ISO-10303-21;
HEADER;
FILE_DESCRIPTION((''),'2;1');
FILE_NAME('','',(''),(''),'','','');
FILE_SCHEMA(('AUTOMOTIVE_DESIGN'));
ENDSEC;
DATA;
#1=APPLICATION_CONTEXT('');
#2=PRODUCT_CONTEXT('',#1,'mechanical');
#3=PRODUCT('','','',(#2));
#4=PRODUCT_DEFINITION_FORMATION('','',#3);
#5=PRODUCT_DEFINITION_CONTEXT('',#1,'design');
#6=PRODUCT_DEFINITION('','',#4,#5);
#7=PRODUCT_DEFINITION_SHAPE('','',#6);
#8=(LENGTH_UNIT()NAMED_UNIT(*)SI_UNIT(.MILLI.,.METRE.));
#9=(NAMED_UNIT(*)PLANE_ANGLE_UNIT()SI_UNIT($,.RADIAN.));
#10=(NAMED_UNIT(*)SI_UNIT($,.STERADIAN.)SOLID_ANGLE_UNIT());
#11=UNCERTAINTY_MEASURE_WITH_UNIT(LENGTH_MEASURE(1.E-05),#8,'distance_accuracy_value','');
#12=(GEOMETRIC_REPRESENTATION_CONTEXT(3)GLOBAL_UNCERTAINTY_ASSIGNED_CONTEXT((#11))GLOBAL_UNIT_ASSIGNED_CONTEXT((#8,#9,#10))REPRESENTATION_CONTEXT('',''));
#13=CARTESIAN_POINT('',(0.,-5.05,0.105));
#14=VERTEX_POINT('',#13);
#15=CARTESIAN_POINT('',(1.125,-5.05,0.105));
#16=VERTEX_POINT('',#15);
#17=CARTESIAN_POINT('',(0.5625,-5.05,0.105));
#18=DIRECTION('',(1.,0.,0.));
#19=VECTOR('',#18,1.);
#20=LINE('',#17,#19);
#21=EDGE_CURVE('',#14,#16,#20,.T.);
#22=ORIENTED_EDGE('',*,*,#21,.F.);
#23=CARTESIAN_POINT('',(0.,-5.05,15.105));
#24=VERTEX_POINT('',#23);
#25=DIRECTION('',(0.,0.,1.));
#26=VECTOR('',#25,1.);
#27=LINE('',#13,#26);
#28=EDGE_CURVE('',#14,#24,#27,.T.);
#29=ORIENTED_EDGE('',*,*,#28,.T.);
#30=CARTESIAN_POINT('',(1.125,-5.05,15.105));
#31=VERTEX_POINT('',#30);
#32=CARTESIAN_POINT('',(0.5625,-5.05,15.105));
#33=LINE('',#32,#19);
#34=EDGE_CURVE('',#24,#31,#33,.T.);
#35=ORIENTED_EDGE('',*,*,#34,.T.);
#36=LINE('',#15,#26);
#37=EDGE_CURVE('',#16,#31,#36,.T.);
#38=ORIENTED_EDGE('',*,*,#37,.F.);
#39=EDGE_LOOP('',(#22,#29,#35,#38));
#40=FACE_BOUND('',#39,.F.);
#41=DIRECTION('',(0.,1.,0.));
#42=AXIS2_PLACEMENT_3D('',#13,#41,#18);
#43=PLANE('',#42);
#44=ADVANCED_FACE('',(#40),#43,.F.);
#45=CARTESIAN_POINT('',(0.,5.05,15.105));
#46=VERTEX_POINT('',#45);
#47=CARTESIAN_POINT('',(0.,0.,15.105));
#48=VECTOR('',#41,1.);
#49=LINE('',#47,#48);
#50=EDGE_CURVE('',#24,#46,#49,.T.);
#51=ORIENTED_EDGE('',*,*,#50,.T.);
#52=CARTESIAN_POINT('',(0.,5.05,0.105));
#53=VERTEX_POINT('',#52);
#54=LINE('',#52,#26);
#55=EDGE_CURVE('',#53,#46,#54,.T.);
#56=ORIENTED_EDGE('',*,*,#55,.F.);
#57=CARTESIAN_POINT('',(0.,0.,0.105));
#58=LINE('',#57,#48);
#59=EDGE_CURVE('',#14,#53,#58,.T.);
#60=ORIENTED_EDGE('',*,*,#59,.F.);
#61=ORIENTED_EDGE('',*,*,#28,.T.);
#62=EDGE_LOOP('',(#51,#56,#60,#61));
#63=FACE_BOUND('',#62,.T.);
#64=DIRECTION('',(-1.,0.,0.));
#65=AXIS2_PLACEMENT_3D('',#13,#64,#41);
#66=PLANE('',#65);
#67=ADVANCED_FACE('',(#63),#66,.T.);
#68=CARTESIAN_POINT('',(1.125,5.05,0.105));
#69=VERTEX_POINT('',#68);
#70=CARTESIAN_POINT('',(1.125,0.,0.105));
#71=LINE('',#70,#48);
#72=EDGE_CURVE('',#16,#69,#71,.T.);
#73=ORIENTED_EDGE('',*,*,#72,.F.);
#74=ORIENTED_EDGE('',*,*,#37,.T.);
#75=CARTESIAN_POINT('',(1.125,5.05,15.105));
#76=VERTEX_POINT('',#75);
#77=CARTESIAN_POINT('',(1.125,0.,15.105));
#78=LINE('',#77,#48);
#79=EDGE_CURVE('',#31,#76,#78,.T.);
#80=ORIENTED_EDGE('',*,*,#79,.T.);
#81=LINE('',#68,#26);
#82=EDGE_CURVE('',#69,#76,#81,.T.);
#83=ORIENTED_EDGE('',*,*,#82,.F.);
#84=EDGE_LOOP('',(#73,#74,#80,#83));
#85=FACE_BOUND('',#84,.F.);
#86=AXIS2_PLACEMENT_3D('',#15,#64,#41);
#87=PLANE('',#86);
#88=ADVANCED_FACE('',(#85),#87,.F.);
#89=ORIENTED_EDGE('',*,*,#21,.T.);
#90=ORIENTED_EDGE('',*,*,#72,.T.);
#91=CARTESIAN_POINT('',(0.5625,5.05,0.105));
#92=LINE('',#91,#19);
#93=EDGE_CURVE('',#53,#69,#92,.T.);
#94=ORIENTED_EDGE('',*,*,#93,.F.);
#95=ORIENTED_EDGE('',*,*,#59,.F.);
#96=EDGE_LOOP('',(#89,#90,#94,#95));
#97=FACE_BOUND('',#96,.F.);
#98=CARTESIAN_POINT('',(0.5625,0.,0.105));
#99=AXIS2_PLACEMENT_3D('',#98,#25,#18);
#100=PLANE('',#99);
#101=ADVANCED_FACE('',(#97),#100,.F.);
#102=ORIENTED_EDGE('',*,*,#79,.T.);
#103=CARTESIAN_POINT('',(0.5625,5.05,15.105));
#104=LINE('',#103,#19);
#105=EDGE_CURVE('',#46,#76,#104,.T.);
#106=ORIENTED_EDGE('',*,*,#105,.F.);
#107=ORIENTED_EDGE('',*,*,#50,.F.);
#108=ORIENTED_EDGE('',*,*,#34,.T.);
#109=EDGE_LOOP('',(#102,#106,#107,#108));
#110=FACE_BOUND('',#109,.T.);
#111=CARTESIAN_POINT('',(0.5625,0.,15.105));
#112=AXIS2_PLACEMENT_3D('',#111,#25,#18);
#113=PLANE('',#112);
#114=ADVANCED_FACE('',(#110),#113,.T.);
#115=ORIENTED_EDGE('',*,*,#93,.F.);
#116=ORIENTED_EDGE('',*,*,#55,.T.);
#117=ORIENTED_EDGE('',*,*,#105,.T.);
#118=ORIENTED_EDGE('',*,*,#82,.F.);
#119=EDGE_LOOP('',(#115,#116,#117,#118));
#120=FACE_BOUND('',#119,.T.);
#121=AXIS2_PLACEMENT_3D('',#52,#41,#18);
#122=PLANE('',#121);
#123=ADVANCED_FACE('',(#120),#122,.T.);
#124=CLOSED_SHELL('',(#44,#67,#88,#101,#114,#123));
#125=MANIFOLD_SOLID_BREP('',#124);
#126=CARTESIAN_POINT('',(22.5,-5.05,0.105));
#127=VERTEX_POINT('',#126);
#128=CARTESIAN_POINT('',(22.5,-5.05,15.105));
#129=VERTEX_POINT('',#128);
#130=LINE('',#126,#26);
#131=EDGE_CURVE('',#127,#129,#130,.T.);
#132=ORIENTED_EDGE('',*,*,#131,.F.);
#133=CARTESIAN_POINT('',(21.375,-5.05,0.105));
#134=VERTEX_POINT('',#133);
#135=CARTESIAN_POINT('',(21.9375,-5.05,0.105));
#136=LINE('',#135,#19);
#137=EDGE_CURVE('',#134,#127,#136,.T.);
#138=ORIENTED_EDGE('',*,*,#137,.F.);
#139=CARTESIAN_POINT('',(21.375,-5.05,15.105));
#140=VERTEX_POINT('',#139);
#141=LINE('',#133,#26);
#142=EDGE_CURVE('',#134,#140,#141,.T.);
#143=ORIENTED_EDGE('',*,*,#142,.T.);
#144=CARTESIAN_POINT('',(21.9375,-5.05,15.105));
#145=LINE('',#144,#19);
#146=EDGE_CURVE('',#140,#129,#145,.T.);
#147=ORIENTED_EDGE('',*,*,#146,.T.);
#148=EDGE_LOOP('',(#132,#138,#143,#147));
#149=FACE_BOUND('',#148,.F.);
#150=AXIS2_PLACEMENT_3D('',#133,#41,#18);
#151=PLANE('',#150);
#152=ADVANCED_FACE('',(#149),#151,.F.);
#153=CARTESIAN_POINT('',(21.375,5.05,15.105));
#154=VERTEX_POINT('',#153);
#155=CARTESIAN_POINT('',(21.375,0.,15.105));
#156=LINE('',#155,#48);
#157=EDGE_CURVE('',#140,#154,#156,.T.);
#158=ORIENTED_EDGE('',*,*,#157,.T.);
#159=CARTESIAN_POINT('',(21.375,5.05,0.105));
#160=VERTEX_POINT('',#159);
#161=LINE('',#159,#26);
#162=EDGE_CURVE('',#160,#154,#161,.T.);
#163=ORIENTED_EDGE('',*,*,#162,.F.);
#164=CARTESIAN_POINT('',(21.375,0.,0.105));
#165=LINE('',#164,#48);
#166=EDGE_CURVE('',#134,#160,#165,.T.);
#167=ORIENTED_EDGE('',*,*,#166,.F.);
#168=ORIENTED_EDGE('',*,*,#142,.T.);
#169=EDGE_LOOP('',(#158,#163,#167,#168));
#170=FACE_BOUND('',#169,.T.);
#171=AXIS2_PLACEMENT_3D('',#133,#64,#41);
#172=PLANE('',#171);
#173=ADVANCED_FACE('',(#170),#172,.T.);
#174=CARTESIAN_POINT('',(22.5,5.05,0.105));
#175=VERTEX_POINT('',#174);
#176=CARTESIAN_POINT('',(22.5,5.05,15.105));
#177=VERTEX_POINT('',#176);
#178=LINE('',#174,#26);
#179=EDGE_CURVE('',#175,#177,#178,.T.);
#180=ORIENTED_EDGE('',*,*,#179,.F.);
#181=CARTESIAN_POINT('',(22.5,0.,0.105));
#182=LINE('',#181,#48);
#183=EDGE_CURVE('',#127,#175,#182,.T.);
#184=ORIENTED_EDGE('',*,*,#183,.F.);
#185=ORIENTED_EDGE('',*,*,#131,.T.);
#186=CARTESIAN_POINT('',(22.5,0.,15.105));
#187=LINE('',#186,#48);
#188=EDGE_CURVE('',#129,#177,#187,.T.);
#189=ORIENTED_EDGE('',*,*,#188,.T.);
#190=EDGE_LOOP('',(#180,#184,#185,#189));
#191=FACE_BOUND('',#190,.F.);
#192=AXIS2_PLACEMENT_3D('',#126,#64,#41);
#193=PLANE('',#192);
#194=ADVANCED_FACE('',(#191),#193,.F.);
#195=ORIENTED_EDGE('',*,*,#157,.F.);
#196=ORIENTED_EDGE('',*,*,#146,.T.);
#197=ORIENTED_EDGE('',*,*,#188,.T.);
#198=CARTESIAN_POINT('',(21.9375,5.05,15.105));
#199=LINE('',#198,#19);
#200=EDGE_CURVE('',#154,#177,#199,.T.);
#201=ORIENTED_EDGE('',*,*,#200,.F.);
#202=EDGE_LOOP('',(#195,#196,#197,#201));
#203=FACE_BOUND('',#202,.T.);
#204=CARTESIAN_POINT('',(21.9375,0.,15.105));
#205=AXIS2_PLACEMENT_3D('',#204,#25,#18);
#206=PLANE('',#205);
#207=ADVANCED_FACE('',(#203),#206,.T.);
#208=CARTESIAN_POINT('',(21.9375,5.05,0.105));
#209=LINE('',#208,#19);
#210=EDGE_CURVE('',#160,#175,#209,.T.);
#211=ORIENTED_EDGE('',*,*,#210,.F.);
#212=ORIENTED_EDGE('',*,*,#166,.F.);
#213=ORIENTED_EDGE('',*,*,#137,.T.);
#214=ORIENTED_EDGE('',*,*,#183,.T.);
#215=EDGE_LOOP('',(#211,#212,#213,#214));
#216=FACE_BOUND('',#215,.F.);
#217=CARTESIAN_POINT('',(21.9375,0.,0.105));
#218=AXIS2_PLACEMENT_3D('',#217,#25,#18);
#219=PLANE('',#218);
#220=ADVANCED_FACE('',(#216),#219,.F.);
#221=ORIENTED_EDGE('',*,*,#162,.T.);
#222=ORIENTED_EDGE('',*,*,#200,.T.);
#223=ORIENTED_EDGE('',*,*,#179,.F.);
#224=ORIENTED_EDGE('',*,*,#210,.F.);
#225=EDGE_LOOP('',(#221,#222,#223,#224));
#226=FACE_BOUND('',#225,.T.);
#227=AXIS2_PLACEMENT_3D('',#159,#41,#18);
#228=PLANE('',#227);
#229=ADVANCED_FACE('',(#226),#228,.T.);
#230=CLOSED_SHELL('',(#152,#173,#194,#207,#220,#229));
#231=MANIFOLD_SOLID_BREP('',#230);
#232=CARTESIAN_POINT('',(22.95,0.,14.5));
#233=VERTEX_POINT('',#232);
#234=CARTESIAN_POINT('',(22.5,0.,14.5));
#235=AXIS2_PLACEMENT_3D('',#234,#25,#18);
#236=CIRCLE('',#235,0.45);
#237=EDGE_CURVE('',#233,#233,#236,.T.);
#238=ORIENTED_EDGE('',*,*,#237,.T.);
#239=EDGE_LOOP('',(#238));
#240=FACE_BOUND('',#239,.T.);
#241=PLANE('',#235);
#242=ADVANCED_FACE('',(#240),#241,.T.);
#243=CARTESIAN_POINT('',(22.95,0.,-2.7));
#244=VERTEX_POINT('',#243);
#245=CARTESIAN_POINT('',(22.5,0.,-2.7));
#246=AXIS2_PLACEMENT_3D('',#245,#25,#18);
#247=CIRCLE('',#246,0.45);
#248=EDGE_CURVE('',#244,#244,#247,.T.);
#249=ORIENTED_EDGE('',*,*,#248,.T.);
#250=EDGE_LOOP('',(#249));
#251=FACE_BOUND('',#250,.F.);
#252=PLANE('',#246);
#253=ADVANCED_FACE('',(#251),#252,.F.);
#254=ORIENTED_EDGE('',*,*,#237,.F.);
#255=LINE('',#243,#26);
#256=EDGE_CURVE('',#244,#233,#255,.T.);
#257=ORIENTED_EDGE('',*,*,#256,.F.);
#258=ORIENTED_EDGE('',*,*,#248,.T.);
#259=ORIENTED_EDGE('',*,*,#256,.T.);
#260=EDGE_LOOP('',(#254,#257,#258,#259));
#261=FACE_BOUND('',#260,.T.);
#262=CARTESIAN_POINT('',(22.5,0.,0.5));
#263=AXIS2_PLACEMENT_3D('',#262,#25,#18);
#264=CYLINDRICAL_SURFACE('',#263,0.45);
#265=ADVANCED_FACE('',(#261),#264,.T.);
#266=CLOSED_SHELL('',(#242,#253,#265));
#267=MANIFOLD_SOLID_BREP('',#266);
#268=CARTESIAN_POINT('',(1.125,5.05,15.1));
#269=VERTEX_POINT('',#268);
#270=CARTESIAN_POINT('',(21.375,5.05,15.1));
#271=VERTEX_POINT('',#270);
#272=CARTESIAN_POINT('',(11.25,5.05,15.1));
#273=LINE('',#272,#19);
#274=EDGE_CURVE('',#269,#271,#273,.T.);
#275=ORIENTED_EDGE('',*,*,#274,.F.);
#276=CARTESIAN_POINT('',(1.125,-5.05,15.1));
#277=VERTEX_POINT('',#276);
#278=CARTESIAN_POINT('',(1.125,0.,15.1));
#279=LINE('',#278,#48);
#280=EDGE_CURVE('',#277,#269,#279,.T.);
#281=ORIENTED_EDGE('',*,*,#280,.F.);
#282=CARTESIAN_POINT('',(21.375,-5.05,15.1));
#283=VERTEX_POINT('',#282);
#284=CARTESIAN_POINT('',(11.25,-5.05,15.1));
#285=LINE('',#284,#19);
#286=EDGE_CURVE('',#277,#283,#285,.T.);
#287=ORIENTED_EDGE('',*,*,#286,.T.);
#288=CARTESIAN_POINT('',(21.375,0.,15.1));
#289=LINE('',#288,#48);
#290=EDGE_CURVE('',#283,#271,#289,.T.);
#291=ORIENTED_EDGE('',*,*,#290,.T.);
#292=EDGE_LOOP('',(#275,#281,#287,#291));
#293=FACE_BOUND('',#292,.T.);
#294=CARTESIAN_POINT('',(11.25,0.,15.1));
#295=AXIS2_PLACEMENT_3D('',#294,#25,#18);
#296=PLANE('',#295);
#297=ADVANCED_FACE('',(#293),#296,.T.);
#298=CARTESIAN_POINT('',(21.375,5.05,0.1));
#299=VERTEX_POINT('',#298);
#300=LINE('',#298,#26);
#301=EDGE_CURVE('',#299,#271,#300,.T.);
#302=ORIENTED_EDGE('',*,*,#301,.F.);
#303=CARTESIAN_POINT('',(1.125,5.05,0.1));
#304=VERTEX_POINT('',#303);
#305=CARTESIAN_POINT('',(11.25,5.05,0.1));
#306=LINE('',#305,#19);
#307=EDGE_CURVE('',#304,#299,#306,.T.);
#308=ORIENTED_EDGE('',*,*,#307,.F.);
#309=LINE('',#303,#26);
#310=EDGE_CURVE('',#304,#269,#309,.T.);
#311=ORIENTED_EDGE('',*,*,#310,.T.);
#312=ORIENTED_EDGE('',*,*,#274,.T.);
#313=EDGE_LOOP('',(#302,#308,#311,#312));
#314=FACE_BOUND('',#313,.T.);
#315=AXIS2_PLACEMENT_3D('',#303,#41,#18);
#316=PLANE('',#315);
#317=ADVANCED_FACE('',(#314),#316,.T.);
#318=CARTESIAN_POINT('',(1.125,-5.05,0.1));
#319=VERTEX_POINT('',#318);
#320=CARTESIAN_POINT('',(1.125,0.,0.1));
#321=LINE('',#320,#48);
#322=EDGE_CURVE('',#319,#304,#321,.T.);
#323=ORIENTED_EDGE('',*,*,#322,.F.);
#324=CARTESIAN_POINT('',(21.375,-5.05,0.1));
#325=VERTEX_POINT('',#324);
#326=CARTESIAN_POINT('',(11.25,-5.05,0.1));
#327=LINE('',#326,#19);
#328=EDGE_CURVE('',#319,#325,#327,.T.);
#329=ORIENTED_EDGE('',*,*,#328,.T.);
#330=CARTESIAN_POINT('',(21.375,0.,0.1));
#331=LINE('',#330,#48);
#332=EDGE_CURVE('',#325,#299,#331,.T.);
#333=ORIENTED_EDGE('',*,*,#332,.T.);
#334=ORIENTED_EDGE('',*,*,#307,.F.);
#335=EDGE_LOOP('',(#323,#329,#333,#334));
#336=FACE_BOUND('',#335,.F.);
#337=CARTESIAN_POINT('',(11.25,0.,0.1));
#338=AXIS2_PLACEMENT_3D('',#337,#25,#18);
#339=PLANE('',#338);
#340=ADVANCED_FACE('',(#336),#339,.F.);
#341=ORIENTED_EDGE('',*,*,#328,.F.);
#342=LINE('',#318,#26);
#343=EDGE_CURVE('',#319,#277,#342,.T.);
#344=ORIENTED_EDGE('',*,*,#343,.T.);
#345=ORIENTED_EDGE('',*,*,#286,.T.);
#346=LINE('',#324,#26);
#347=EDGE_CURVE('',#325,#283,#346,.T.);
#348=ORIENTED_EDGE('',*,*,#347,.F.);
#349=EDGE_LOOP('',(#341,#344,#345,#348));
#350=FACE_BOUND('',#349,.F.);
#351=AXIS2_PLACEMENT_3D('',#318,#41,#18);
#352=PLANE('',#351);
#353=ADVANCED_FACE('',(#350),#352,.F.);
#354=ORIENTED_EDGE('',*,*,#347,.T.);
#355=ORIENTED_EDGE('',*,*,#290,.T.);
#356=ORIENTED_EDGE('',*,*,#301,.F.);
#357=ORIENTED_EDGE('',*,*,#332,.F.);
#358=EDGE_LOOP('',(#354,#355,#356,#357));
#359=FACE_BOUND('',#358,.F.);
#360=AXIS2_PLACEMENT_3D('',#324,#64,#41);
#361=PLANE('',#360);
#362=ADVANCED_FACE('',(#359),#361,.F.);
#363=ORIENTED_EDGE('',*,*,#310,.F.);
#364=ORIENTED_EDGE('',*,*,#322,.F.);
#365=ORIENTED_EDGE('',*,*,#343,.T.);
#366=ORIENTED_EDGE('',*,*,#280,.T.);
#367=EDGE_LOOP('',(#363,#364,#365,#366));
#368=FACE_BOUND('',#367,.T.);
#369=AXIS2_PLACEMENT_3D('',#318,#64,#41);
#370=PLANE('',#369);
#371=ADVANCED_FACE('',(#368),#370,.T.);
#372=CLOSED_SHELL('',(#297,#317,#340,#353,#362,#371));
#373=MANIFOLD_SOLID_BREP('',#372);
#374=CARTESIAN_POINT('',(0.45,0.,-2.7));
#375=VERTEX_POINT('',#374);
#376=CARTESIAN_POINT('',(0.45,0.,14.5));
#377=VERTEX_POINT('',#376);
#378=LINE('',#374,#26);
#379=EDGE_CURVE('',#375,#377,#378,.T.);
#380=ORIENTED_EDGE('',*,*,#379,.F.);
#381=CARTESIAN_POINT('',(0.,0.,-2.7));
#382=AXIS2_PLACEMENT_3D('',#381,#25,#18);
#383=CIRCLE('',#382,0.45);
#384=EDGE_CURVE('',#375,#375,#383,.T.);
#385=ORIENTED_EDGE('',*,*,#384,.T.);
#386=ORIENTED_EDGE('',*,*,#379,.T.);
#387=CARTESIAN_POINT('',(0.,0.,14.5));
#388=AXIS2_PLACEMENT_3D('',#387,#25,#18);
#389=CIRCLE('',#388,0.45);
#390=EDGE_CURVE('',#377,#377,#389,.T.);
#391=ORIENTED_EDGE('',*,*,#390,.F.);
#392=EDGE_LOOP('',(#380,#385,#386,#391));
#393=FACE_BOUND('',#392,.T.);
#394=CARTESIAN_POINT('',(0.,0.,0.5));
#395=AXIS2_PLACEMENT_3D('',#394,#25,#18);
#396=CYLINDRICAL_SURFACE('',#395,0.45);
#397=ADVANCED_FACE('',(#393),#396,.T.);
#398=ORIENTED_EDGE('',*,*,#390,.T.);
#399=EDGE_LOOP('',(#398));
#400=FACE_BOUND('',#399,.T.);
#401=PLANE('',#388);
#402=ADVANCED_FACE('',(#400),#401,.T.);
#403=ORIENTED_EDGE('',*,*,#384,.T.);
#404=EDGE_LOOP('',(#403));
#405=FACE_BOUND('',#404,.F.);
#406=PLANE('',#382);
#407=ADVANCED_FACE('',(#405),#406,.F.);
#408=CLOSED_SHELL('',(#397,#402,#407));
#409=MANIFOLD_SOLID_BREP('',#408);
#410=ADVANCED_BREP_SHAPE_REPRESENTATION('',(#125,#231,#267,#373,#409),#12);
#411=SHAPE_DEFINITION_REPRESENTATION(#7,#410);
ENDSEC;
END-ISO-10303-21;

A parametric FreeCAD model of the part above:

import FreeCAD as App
import Part
import Sketcher
Q = App.Units.Quantity


def add_polygon(sketch, points):
    """Adds a closed chain of lines whose ends are joined by coincident constraints."""
    first, n = sketch.GeometryCount, len(points)
    for a, b in zip(points, points[1:] + points[:1]):
        sketch.addGeometry(Part.LineSegment(App.Vector(*a, 0), App.Vector(*b, 0)), False)
    for i in range(n):
        sketch.addConstraint(Sketcher.Constraint("Coincident", first + i, 2, first + (i + 1) % n, 1))

doc = App.newDocument("Part")
body = doc.addObject("PartDesign::Body", "Body")

# Sketch on XY plane
sketch1 = doc.addObject("Sketcher::SketchObject", "Sketch")
body.addObject(sketch1)
sketch1.AttachmentSupport = (doc.XY_Plane, [""])
sketch1.MapMode = "FlatFace"
sketch1.AttachmentOffset = App.Placement(App.Vector(0, 0, 0.1), App.Rotation())
add_polygon(sketch1, [(1, 5), (1, -5), (21, -5), (21, 5)])  # lines 0-3
sketch1.addConstraint(Sketcher.Constraint("Vertical", 0))
sketch1.addConstraint(Sketcher.Constraint("Horizontal", 1))
sketch1.addConstraint(Sketcher.Constraint("Vertical", 2))
sketch1.addConstraint(Sketcher.Constraint("Horizontal", 3))
sketch1.addConstraint(Sketcher.Constraint("DistanceY", 0, 2, 0, 1, Q("10.1 mm")))
sketch1.addConstraint(Sketcher.Constraint("DistanceX", 1, 1, 1, 2, Q("20.25 mm")))
sketch1.addConstraint(Sketcher.Constraint("DistanceY", 0, 2, -1, 1, Q("5.05 mm")))
sketch1.addConstraint(Sketcher.Constraint("DistanceX", -1, 1, 0, 2, Q("1.125 mm")))
pad1 = doc.addObject("PartDesign::Pad", "Pad")
body.addObject(pad1)
pad1.Profile = sketch1
pad1.Length = 15
body2 = doc.addObject("PartDesign::Body", "Body001")
body2.AllowCompound = True

# Sketch on XY plane
sketch2 = doc.addObject("Sketcher::SketchObject", "Sketch001")
body2.addObject(sketch2)
sketch2.AttachmentSupport = (doc.getObject("XY_Plane001"), [""])
sketch2.MapMode = "FlatFace"
sketch2.AttachmentOffset = App.Placement(App.Vector(0, 0, 0.5), App.Rotation())
sketch2.addGeometry(Part.Circle(App.Vector(0, 0, 0), App.Vector(0, 0, 1), 0.45), False)
sketch2.addGeometry(Part.Circle(App.Vector(22.5, 0, 0), App.Vector(0, 0, 1), 0.45), False)
sketch2.addConstraint(Sketcher.Constraint("Coincident", 0, 3, -1, 1))
sketch2.addConstraint(Sketcher.Constraint("Equal", 0, 1))
sketch2.addConstraint(Sketcher.Constraint("PointOnObject", 1, 3, -1))
sketch2.addConstraint(Sketcher.Constraint("Diameter", 0, Q("0.9 mm")))
sketch2.addConstraint(Sketcher.Constraint("DistanceX", -1, 1, 1, 3, Q("22.5 mm")))
pad2 = doc.addObject("PartDesign::Pad", "Pad001")
body2.addObject(pad2)
pad2.Profile = sketch2
pad2.Type = "TwoLengths"
pad2.Length = 14
pad2.Length2 = 3.2
body3 = doc.addObject("PartDesign::Body", "Body002")
body3.AllowCompound = True

# Sketch on XY plane
sketch3 = doc.addObject("Sketcher::SketchObject", "Sketch002")
body3.addObject(sketch3)
sketch3.AttachmentSupport = (doc.getObject("XY_Plane002"), [""])
sketch3.MapMode = "FlatFace"
sketch3.AttachmentOffset = App.Placement(App.Vector(0, 0, 0.105), App.Rotation())
add_polygon(sketch3, [(0, 5), (0, -5), (1.1, -5), (1.1, 5)])  # lines 0-3
add_polygon(sketch3, [(21.4, 5), (21.4, -5), (22.5, -5), (22.5, 5)])  # lines 4-7
sketch3.addConstraint(Sketcher.Constraint("Vertical", 0))
sketch3.addConstraint(Sketcher.Constraint("Horizontal", 1))
sketch3.addConstraint(Sketcher.Constraint("Vertical", 2))
sketch3.addConstraint(Sketcher.Constraint("Horizontal", 3))
sketch3.addConstraint(Sketcher.Constraint("Vertical", 4))
sketch3.addConstraint(Sketcher.Constraint("Horizontal", 5))
sketch3.addConstraint(Sketcher.Constraint("Vertical", 6))
sketch3.addConstraint(Sketcher.Constraint("Horizontal", 7))
sketch3.addConstraint(Sketcher.Constraint("Symmetric", 0, 2, 3, 2, -1, 1))
sketch3.addConstraint(Sketcher.Constraint("Horizontal", 1, 2, 4, 2))
sketch3.addConstraint(Sketcher.Constraint("Horizontal", 3, 2, 6, 2))
sketch3.addConstraint(Sketcher.Constraint("Equal", 3, 5))
sketch3.addConstraint(Sketcher.Constraint("DistanceY", 0, 2, 0, 1, Q("10.1 mm")))
sketch3.addConstraint(Sketcher.Constraint("DistanceX", -1, 1, 5, 2, Q("22.5 mm")))
sketch3.addConstraint(Sketcher.Constraint("DistanceX", 1, 1, 1, 2, Q("1.125 mm")))
pad3 = doc.addObject("PartDesign::Pad", "Pad002")
body3.addObject(pad3)
pad3.Profile = sketch3
pad3.Length = 15

doc.recompute()
